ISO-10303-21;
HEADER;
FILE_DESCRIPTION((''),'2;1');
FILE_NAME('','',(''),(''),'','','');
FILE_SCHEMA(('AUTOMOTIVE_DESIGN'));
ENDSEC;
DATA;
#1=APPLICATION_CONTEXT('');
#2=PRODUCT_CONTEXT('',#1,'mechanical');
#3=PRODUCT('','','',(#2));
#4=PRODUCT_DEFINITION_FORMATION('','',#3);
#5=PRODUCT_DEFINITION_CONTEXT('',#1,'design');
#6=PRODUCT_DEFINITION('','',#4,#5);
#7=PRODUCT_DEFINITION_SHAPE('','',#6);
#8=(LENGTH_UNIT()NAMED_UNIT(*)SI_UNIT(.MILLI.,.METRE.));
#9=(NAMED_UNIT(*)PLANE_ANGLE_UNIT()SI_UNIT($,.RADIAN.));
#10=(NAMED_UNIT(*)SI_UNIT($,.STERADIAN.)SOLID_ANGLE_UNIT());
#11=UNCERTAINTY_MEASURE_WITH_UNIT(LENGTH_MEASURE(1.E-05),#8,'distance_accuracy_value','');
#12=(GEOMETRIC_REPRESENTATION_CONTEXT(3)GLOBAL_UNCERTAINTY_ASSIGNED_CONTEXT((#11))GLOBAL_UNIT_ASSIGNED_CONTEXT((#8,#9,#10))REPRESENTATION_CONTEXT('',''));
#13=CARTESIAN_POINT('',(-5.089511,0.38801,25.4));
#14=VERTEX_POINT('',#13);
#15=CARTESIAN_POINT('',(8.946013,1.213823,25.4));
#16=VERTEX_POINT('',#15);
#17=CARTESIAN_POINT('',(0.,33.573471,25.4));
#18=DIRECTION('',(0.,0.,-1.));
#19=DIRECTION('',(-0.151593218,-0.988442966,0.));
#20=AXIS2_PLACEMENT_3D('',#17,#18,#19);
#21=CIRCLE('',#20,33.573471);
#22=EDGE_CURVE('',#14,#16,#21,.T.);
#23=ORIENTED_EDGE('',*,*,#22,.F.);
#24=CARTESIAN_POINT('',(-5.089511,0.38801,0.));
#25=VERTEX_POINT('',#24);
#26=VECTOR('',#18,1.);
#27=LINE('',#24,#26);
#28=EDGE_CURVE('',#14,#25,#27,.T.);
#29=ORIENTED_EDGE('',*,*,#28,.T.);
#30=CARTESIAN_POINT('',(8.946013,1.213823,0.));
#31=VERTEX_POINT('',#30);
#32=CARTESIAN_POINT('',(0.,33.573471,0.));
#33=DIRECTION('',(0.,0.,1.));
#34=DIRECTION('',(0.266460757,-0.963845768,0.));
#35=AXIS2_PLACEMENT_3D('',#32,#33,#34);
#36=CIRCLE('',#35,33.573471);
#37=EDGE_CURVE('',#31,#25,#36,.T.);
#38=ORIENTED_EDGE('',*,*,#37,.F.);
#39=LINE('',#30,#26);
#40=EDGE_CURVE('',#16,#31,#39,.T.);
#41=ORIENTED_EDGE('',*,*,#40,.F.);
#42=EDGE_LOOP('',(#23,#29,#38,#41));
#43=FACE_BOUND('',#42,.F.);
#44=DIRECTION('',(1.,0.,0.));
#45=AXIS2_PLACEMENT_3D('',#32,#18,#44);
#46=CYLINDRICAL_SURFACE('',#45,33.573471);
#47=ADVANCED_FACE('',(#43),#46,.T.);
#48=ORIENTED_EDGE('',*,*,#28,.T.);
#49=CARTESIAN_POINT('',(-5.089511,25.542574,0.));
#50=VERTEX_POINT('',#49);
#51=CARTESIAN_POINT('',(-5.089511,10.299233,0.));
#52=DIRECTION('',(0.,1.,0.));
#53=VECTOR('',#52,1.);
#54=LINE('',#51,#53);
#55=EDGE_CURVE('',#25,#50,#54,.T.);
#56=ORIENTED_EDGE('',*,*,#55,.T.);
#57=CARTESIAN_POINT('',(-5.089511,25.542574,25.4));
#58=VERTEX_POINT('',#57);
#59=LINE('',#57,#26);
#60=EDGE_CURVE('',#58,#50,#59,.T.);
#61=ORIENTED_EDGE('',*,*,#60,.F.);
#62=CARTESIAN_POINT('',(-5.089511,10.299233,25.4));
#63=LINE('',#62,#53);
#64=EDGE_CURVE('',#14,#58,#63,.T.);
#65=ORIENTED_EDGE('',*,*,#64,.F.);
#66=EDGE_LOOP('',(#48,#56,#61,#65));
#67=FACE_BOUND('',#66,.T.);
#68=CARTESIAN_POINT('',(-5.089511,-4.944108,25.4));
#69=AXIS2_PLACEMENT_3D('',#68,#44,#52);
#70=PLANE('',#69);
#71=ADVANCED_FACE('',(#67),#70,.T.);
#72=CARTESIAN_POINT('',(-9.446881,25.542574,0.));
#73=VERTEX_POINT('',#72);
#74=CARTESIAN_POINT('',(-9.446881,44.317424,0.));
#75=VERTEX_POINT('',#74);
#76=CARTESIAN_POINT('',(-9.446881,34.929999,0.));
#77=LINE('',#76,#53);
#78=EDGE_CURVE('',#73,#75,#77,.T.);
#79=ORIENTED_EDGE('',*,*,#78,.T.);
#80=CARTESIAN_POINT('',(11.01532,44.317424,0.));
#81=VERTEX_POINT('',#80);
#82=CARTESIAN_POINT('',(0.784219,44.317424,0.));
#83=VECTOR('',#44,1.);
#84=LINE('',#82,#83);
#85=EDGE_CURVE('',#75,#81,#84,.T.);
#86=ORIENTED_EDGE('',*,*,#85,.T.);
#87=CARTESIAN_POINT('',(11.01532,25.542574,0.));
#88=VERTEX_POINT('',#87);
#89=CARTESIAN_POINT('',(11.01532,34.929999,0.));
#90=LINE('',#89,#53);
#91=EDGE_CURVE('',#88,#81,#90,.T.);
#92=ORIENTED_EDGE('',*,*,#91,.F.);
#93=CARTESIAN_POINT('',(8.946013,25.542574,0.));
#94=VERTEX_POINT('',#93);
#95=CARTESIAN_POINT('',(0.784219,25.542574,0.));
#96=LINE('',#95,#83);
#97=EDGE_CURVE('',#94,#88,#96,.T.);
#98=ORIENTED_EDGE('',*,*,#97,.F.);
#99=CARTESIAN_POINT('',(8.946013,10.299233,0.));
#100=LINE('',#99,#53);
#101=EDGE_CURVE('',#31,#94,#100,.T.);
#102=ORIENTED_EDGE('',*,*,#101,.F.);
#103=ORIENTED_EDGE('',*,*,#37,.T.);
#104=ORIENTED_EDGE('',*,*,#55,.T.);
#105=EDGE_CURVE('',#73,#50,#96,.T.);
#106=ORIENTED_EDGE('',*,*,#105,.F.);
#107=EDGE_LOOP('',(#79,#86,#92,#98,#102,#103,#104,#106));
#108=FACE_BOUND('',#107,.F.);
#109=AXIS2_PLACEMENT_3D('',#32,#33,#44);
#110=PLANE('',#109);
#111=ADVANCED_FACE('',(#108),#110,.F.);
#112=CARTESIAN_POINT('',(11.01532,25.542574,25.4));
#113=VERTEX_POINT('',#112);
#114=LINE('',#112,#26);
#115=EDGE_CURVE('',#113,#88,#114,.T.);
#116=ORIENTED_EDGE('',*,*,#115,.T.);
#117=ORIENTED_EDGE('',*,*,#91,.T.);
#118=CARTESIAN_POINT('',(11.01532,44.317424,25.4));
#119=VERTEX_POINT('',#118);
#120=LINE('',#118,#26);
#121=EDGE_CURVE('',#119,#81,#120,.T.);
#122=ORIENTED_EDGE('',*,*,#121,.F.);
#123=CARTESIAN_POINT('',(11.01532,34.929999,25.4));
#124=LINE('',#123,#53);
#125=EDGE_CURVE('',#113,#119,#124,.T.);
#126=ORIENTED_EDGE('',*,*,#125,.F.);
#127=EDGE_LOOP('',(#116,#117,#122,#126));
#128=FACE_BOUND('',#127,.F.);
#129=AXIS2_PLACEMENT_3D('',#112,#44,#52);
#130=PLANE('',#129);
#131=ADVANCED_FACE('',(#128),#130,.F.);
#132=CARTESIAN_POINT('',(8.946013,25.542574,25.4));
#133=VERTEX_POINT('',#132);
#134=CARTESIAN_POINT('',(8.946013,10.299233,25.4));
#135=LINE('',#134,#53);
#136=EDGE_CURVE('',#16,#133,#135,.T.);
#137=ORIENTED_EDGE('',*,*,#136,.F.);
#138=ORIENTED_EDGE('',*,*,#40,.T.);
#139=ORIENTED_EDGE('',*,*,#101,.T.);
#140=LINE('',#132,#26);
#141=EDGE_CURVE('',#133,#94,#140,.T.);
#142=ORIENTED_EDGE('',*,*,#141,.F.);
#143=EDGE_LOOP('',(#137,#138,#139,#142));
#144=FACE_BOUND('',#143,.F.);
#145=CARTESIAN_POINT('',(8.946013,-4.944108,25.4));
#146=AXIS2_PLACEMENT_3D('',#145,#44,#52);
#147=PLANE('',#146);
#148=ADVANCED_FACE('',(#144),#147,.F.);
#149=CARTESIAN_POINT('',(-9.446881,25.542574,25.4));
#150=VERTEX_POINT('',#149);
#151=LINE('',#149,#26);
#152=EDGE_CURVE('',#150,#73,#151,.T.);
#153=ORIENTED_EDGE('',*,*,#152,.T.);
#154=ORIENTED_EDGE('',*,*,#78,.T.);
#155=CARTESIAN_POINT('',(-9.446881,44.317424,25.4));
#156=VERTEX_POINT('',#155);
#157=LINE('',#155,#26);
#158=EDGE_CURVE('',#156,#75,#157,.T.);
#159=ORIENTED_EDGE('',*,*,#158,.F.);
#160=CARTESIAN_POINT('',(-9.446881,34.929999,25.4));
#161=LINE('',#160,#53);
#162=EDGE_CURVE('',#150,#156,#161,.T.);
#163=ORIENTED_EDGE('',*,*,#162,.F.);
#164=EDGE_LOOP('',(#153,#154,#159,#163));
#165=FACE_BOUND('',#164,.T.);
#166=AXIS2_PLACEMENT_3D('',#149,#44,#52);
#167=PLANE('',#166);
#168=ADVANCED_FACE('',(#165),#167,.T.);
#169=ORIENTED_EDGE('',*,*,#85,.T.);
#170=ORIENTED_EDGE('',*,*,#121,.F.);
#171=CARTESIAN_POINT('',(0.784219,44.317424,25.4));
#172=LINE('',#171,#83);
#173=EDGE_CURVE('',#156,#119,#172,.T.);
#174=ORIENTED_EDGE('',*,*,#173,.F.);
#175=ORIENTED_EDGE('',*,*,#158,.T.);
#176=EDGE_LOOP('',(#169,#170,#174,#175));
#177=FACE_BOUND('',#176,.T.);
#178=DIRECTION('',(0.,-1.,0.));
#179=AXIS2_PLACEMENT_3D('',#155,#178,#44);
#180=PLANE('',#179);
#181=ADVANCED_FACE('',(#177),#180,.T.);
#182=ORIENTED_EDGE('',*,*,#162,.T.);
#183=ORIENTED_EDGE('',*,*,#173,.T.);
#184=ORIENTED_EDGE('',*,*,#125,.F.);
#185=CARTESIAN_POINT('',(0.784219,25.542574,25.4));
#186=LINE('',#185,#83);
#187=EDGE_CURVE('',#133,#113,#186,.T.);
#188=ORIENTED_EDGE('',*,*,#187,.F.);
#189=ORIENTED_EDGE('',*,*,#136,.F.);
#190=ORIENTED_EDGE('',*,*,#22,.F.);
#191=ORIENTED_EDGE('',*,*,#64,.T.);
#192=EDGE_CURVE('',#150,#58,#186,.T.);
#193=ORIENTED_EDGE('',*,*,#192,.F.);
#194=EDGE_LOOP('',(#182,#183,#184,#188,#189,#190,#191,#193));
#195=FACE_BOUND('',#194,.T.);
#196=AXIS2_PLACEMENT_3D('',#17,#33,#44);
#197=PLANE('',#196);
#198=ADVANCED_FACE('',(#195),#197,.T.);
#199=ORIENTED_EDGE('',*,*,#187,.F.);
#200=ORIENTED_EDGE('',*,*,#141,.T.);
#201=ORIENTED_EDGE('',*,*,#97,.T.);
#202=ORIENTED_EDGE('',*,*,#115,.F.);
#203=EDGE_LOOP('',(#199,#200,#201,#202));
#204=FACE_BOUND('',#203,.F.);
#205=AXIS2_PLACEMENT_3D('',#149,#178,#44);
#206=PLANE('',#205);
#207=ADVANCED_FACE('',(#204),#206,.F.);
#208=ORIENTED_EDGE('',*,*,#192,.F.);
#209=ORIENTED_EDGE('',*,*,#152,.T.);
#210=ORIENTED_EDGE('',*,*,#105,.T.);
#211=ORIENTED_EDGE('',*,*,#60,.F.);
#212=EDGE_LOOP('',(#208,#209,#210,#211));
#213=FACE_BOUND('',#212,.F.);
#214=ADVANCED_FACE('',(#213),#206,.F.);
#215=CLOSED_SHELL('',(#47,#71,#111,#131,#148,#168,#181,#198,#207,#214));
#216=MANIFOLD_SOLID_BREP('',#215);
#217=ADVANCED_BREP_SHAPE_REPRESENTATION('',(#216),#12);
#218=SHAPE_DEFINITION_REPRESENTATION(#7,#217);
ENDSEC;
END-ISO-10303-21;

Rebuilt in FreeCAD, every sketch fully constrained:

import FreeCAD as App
import Part
import Sketcher
Q = App.Units.Quantity

doc = App.newDocument("Part")
body = doc.addObject("PartDesign::Body", "Body")

sketch1 = body.newObject("Sketcher::SketchObject", "Sketch")
sketch1.AttachmentSupport = (doc.getObject("XY_Plane"), [""])
sketch1.MapMode = "FlatFace"
sketch1.addGeometry(Part.Circle(App.Vector(0, 34, 0), App.Vector(0, 0, 1), 34), False)
sketch1.addConstraint(Sketcher.Constraint("PointOnObject", 0, 3, -2))
sketch1.addConstraint(Sketcher.Constraint("Diameter", 0, Q("67.146942 mm")))
sketch1.addConstraint(Sketcher.Constraint("DistanceY", -1, 1, 0, 3, Q("33.573471 mm")))
pad1 = body.newObject("PartDesign::Pad", "Pad")
pad1.Profile = sketch1
pad1.Length = Q("1 in")

sketch2 = body.newObject("Sketcher::SketchObject", "Sketch001")
sketch2.AttachmentSupport = (doc.getObject("XY_Plane"), [""])
sketch2.MapMode = "FlatFace"
sketch2.AttachmentOffset = App.Placement(App.Vector(0, 0, 1 * 25.4), App.Rotation())
sketch2.addGeometry(Part.LineSegment(App.Vector(-9, 44, 0), App.Vector(-9, 26, 0)), False)
sketch2.addGeometry(Part.LineSegment(App.Vector(-9, 26, 0), App.Vector(11, 26, 0)), False)
sketch2.addGeometry(Part.LineSegment(App.Vector(11, 26, 0), App.Vector(11, 44, 0)), False)
sketch2.addGeometry(Part.LineSegment(App.Vector(11, 44, 0), App.Vector(-9, 44, 0)), False)
sketch2.addConstraint(Sketcher.Constraint("Coincident", 0, 2, 1, 1))
sketch2.addConstraint(Sketcher.Constraint("Coincident", 1, 2, 2, 1))
sketch2.addConstraint(Sketcher.Constraint("Coincident", 2, 2, 3, 1))
sketch2.addConstraint(Sketcher.Constraint("Coincident", 3, 2, 0, 1))
sketch2.addConstraint(Sketcher.Constraint("Vertical", 0))
sketch2.addConstraint(Sketcher.Constraint("Horizontal", 1))
sketch2.addConstraint(Sketcher.Constraint("Vertical", 2))
sketch2.addConstraint(Sketcher.Constraint("Horizontal", 3))
sketch2.addConstraint(Sketcher.Constraint("DistanceX", 1, 1, 1, 2, Q("20.462201 mm")))
sketch2.addConstraint(Sketcher.Constraint("DistanceY", 0, 2, 0, 1, Q("18.77485 mm")))
sketch2.addConstraint(Sketcher.Constraint("DistanceX", 0, 2, -1, 1, Q("9.446881 mm")))
sketch2.addConstraint(Sketcher.Constraint("DistanceY", -1, 1, 0, 2, Q("25.542574 mm")))
pocket1 = body.newObject("PartDesign::Pocket", "Pocket")
pocket1.Profile = sketch2
pocket1.Length = Q("1 in")

sketch3 = body.newObject("Sketcher::SketchObject", "Sketch002")
sketch3.AttachmentSupport = (doc.getObject("XY_Plane"), [""])
sketch3.MapMode = "FlatFace"
sketch3.AttachmentOffset = App.Placement(App.Vector(0, 0, 1 * 25.4), App.Rotation())
sketch3.addGeometry(Part.LineSegment(App.Vector(-5, 26, 0), App.Vector(-5, -5, 0)), False)
sketch3.addGeometry(Part.LineSegment(App.Vector(-5, -5, 0), App.Vector(9, -5, 0)), False)
sketch3.addGeometry(Part.LineSegment(App.Vector(9, -5, 0), App.Vector(9, 26, 0)), False)
sketch3.addGeometry(Part.LineSegment(App.Vector(9, 26, 0), App.Vector(-5, 26, 0)), False)
sketch3.addConstraint(Sketcher.Constraint("Coincident", 0, 2, 1, 1))
sketch3.addConstraint(Sketcher.Constraint("Coincident", 1, 2, 2, 1))
sketch3.addConstraint(Sketcher.Constraint("Coincident", 2, 2, 3, 1))
sketch3.addConstraint(Sketcher.Constraint("Coincident", 3, 2, 0, 1))
sketch3.addConstraint(Sketcher.Constraint("Vertical", 0))
sketch3.addConstraint(Sketcher.Constraint("Horizontal", 1))
sketch3.addConstraint(Sketcher.Constraint("Vertical", 2))
sketch3.addConstraint(Sketcher.Constraint("Horizontal", 3))
sketch3.addConstraint(Sketcher.Constraint("DistanceY", 0, 2, 0, 1, Q("30.486682 mm")))
sketch3.addConstraint(Sketcher.Constraint("DistanceX", 1, 1, 1, 2, Q("14.035523 mm")))
sketch3.addConstraint(Sketcher.Constraint("DistanceX", 0, 2, -1, 1, Q("5.089511 mm")))
sketch3.addConstraint(Sketcher.Constraint("DistanceY", 0, 2, -1, 1, Q("4.944108 mm")))
pocket2 = body.newObject("PartDesign::Pocket", "Pocket001")
pocket2.Profile = sketch3
pocket2.Length = Q("1 in")
body2 = doc.addObject("PartDesign::Body", "Body001")

sketch4 = body2.newObject("Sketcher::SketchObject", "Sketch003")
sketch4.AttachmentSupport = (doc.getObject("XY_Plane001"), [""])
sketch4.MapMode = "FlatFace"
sketch4.addGeometry(Part.LineSegment(App.Vector(-65, -27, 0), App.Vector(-65, -56, 0)), False)
sketch4.addGeometry(Part.LineSegment(App.Vector(-65, -56, 0), App.Vector(-34, -56, 0)), False)
sketch4.addGeometry(Part.LineSegment(App.Vector(-34, -56, 0), App.Vector(-34, -27, 0)), False)
sketch4.addGeometry(Part.LineSegment(App.Vector(-34, -27, 0), App.Vector(-65, -27, 0)), False)
sketch4.addConstraint(Sketcher.Constraint("Coincident", 0, 2, 1, 1))
sketch4.addConstraint(Sketcher.Constraint("Coincident", 1, 2, 2, 1))
sketch4.addConstraint(Sketcher.Constraint("Coincident", 2, 2, 3, 1))
sketch4.addConstraint(Sketcher.Constraint("Coincident", 3, 2, 0, 1))
sketch4.addConstraint(Sketcher.Constraint("Vertical", 0))
sketch4.addConstraint(Sketcher.Constraint("Horizontal", 1))
sketch4.addConstraint(Sketcher.Constraint("Vertical", 2))
sketch4.addConstraint(Sketcher.Constraint("Horizontal", 3))
sketch4.addConstraint(Sketcher.Constraint("DistanceX", 1, 1, 1, 2, Q("30.792393 mm")))
sketch4.addConstraint(Sketcher.Constraint("DistanceY", 0, 2, 0, 1, Q("28.740146 mm")))
sketch4.addConstraint(Sketcher.Constraint("DistanceY", 0, 2, -1, 1, Q("55.665091 mm")))
sketch4.addConstraint(Sketcher.Constraint("DistanceX", 0, 2, -1, 1, Q("64.953856 mm")))
pad2 = body2.newObject("PartDesign::Pad", "Pad001")
pad2.Profile = sketch4
pad2.Length = Q("1 in")
body2.Visibility = False

doc.recompute()
